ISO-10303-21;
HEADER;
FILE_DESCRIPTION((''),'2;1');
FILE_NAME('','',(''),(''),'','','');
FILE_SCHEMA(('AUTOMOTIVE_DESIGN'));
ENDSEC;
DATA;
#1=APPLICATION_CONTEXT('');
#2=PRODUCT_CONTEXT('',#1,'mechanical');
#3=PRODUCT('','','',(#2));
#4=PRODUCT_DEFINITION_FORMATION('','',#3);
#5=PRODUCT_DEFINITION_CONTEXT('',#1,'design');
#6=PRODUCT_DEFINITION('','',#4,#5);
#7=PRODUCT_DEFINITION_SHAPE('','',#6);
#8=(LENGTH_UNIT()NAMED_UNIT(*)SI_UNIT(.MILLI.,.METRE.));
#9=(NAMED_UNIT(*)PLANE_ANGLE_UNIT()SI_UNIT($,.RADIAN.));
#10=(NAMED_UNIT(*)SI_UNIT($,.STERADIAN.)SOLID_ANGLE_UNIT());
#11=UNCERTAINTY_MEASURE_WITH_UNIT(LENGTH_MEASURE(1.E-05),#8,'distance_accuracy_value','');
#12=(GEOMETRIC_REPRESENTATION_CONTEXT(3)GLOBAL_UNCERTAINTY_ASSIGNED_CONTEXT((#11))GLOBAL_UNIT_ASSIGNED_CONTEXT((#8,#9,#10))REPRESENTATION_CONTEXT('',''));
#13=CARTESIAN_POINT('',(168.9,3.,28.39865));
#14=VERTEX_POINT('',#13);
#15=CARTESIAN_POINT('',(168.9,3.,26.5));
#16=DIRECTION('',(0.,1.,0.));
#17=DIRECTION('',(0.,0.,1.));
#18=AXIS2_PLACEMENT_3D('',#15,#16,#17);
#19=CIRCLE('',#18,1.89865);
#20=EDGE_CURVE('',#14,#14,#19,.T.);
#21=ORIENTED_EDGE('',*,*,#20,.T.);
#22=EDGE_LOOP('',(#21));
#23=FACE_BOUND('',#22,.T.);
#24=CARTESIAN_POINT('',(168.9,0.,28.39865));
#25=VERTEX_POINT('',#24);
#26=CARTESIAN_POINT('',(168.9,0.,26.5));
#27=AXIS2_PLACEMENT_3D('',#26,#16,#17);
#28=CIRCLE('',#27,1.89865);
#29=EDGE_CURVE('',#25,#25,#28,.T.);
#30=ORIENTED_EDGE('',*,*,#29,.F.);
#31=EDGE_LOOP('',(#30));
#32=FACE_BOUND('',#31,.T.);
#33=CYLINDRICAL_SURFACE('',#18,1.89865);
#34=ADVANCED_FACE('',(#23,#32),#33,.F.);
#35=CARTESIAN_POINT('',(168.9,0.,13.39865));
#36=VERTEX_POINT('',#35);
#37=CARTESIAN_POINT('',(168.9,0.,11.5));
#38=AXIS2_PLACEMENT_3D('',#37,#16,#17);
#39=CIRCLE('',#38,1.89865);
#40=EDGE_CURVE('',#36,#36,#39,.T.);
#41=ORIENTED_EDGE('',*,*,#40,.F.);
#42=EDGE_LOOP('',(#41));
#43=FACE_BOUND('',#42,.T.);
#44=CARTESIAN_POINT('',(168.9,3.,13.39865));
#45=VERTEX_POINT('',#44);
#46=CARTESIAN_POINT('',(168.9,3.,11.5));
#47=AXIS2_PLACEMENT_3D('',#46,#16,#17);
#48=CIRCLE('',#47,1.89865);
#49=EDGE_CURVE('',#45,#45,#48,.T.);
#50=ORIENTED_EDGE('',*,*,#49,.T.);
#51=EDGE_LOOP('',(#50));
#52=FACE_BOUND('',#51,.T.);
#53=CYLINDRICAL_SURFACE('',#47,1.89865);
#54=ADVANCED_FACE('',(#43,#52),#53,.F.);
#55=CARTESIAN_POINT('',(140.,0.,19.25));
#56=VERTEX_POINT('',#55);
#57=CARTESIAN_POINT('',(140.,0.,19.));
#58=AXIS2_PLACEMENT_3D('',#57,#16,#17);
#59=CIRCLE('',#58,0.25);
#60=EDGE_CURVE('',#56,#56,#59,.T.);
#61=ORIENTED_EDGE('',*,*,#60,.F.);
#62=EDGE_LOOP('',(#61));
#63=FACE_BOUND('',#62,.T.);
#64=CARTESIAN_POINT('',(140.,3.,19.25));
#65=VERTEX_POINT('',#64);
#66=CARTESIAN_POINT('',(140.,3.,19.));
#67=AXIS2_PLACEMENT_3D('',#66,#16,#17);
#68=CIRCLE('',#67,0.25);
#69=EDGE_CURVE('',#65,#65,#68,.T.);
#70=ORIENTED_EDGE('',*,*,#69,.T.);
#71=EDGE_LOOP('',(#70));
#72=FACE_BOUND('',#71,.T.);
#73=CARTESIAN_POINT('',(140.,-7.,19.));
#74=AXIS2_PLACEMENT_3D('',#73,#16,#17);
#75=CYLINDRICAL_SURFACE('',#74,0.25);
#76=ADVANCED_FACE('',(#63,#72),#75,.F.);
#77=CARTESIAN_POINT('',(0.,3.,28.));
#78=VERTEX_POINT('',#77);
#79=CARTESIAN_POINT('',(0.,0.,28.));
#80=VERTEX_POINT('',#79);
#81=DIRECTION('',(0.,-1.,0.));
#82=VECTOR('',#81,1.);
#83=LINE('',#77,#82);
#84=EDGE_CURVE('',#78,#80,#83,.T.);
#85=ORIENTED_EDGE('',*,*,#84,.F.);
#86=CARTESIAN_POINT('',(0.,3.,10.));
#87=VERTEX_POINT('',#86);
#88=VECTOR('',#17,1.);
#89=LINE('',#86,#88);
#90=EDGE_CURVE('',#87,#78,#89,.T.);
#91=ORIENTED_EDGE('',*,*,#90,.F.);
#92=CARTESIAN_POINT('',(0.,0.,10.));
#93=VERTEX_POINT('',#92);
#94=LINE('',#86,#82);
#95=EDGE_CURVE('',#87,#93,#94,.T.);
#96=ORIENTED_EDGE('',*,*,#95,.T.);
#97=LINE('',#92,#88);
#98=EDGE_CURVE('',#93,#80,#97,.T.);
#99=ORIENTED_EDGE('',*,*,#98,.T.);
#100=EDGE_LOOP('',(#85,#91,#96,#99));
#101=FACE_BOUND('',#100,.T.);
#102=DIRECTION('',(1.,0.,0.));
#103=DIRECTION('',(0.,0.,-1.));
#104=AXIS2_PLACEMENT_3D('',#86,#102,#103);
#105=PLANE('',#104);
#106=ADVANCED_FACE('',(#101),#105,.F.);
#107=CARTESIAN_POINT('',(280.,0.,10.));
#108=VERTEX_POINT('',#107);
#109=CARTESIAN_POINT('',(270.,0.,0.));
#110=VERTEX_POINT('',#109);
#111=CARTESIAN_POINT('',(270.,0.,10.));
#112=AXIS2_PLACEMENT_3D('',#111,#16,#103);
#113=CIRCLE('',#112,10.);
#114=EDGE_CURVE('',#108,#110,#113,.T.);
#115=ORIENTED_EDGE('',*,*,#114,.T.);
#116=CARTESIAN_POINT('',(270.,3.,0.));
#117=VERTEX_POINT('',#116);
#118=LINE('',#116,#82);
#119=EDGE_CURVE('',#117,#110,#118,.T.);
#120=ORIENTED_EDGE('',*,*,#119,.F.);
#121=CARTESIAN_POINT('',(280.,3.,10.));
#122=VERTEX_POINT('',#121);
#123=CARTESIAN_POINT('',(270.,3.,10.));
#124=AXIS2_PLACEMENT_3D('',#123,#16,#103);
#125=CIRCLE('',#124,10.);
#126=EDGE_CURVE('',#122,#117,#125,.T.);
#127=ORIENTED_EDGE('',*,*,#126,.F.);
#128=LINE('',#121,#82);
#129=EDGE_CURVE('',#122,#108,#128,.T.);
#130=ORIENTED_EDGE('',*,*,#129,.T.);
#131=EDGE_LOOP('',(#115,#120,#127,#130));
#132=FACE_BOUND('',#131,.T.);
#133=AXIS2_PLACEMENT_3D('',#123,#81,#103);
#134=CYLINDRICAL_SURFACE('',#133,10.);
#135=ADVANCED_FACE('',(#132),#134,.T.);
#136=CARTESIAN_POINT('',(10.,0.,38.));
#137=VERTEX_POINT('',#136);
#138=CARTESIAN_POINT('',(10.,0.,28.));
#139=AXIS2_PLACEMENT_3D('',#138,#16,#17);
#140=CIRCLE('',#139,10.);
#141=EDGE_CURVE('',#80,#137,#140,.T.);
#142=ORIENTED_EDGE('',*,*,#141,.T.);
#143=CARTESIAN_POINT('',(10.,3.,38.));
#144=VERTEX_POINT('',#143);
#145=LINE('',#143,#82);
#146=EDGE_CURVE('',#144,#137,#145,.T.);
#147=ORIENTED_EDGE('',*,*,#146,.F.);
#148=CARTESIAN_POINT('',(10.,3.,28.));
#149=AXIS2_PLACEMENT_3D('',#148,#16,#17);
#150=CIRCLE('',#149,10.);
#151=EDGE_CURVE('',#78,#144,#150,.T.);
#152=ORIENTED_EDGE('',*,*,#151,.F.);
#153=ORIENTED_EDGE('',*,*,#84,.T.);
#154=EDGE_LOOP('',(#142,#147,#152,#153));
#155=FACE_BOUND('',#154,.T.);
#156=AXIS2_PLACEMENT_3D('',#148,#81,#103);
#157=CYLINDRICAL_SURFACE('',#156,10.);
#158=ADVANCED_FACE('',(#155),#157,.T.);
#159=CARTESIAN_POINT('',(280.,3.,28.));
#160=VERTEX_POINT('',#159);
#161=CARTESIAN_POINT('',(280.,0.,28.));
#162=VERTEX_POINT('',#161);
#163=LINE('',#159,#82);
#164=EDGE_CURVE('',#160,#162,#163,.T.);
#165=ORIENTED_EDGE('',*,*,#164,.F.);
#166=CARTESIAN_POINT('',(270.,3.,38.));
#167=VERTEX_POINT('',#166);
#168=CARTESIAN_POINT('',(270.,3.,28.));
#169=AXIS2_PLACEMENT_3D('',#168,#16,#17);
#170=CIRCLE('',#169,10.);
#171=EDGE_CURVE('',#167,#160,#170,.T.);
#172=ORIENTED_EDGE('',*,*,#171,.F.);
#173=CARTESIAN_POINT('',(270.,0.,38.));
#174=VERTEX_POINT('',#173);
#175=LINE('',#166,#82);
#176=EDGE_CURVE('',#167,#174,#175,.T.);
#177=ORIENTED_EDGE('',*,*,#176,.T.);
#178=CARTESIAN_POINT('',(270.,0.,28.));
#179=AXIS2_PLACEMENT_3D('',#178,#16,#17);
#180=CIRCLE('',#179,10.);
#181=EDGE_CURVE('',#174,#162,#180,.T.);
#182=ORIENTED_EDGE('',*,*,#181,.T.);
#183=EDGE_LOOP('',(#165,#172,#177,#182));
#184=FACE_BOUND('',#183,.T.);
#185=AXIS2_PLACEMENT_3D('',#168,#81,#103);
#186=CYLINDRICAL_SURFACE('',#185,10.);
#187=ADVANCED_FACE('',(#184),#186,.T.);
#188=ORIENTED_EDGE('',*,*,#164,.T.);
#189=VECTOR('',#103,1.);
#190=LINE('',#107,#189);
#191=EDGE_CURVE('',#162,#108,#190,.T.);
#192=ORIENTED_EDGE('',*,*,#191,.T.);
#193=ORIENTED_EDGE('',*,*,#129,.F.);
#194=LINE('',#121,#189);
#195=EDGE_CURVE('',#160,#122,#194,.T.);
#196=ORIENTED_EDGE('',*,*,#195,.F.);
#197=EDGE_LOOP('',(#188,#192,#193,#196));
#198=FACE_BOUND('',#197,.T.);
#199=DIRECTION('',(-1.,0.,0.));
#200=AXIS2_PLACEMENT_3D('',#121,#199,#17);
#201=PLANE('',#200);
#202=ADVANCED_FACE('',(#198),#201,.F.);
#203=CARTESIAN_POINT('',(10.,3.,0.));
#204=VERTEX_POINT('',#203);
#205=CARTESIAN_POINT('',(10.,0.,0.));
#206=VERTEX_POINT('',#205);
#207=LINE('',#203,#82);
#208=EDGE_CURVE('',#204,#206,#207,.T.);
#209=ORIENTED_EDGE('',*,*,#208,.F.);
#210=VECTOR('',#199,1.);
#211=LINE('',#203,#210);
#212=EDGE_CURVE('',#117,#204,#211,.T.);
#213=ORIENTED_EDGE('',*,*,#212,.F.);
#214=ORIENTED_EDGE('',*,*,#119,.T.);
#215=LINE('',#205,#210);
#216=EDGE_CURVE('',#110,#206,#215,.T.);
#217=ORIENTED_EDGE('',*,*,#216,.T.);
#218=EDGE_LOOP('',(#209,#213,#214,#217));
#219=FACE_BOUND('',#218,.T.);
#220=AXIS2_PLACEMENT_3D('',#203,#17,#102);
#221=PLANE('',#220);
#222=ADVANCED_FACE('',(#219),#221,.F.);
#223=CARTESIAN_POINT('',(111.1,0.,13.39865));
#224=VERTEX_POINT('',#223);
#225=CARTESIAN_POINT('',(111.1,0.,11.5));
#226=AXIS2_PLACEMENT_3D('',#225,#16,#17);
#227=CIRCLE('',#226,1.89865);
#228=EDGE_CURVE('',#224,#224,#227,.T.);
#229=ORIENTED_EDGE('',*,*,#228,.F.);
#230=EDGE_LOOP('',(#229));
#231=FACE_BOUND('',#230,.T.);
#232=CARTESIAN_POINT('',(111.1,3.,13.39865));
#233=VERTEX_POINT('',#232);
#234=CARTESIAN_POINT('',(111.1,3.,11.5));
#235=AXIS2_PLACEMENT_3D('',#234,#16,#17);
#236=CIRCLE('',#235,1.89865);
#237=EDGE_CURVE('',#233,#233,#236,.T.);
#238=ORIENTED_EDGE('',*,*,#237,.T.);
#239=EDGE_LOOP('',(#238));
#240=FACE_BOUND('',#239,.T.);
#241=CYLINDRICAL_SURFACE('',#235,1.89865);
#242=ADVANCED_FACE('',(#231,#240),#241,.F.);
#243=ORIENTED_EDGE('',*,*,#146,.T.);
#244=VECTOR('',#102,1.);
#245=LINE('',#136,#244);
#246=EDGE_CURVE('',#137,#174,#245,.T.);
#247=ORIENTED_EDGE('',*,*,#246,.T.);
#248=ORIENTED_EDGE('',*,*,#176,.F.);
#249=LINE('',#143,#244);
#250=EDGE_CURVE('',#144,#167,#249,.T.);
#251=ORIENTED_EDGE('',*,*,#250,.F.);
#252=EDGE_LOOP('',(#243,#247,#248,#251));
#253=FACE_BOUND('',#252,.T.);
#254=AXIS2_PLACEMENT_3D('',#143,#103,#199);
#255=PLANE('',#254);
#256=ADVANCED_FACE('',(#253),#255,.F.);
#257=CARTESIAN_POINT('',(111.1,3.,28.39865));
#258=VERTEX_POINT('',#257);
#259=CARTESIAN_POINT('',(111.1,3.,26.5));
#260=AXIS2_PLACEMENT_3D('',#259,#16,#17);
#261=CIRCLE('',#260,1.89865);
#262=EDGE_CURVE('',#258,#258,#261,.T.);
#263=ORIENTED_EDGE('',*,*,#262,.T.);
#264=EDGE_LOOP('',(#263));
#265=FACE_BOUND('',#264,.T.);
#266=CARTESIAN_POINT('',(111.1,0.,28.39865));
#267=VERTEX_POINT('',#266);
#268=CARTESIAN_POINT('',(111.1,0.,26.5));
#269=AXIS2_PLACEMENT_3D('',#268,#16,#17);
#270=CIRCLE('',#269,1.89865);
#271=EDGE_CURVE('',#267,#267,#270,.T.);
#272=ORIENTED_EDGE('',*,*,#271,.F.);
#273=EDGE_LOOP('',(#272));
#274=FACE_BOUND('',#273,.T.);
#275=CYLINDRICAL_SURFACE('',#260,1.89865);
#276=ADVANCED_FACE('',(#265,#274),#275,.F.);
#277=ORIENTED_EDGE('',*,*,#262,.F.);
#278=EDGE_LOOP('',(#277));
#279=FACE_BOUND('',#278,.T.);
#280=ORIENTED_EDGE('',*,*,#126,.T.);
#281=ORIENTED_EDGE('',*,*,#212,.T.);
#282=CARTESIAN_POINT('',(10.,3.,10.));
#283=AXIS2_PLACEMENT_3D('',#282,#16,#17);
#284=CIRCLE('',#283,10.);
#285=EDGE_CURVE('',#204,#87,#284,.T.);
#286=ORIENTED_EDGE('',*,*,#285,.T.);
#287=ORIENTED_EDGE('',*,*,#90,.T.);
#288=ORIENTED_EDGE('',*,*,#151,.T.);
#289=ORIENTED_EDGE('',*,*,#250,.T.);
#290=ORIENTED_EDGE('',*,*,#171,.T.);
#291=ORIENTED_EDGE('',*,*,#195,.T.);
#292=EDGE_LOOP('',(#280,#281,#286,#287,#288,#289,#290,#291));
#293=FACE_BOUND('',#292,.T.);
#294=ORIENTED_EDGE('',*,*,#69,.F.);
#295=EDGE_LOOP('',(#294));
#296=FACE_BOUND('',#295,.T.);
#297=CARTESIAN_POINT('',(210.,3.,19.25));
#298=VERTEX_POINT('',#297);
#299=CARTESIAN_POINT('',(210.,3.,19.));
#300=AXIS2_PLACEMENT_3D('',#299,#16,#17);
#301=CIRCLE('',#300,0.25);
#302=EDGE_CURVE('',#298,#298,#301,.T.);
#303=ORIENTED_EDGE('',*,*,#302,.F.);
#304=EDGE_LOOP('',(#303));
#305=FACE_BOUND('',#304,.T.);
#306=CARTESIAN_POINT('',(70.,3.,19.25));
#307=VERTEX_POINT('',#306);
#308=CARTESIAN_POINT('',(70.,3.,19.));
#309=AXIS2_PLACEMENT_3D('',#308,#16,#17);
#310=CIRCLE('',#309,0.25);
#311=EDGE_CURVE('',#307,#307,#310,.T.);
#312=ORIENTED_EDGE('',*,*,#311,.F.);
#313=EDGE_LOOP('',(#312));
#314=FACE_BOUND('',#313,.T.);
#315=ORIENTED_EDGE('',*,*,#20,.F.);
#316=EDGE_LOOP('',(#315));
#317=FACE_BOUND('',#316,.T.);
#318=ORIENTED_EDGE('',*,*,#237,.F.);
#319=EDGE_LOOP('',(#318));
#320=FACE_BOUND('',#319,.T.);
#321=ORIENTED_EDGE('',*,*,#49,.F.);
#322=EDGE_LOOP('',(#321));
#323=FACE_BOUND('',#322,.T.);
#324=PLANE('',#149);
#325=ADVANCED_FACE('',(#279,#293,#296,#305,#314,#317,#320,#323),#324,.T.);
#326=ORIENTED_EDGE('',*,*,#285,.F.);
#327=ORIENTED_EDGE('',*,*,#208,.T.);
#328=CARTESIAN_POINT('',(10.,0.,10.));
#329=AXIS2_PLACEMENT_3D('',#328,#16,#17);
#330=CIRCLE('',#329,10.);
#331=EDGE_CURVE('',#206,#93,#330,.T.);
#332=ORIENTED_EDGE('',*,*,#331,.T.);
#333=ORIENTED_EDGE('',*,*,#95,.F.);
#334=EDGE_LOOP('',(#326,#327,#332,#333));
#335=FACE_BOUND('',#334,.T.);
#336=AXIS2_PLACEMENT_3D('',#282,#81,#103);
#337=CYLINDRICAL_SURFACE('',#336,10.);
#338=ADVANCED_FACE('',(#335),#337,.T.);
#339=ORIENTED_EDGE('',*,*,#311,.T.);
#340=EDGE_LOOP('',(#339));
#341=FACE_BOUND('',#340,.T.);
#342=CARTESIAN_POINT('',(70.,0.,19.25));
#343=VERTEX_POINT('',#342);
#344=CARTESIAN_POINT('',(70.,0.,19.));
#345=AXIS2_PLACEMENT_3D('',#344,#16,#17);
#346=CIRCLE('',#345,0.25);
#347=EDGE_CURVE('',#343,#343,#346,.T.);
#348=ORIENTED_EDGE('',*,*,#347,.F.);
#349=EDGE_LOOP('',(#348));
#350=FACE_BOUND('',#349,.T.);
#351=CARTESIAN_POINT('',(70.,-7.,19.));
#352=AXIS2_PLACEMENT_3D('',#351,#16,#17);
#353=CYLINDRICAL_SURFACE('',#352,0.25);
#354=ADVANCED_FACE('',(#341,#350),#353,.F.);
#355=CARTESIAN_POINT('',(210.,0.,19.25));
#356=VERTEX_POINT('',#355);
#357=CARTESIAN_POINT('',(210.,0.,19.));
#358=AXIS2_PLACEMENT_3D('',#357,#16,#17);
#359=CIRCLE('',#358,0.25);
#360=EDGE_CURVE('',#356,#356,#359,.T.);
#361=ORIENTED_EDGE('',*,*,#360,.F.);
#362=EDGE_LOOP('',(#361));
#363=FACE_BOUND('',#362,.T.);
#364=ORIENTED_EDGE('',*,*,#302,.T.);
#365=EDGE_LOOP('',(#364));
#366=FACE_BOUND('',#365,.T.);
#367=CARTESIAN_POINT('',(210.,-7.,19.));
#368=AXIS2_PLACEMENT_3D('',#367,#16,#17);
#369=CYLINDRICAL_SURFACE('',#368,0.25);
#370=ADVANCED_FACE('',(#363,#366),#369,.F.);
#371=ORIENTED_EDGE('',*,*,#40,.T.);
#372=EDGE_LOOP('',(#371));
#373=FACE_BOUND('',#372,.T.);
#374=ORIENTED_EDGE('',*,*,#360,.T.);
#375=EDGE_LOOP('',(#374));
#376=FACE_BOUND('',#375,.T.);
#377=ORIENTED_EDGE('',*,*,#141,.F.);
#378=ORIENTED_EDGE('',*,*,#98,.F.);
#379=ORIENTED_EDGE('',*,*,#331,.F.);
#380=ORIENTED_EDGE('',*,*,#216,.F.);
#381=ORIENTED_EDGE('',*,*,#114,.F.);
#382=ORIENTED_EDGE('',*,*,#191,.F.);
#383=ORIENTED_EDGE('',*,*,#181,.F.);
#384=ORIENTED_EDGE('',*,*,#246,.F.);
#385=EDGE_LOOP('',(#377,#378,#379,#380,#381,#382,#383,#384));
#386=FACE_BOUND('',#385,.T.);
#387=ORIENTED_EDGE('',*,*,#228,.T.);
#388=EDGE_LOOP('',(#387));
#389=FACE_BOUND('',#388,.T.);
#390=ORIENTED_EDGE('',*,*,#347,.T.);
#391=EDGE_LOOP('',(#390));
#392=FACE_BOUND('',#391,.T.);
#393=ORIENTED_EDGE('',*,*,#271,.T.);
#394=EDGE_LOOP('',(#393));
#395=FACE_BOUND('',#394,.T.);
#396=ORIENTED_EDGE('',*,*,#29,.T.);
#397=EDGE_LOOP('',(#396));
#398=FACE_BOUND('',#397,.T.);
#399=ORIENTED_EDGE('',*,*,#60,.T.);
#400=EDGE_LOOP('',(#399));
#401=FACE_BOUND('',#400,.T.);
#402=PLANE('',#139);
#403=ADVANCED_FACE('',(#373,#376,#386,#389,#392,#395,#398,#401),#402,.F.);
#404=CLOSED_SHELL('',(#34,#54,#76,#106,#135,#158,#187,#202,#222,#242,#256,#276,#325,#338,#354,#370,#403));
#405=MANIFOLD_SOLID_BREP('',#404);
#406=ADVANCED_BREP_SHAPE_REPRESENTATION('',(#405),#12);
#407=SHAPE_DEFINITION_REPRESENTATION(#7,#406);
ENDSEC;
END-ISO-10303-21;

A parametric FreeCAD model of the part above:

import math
import FreeCAD as App
import Part
import Sketcher
Q = App.Units.Quantity

doc = App.newDocument("Part")
params = doc.addObject("Spreadsheet::Sheet", "Params")
for row, (alias, value) in enumerate([
    ("sketch1_radius", "10 mm"),
    ("sketch1_width", "260 mm"),
    ("sketch1_height", "18 mm"),
    ("pad1_length", "3 mm"),
    ("hole_diameter", "3.7973 mm"),
    ("sketch3_diameter", "0.5 mm"),
    ("pocket1_length", "10 mm"),
], start=1):
    params.set(f"A{row}", alias)
    params.set(f"B{row}", "=" + value)
    params.setAlias(f"B{row}", alias)

body = doc.addObject("PartDesign::Body", "Body")

sketch1 = doc.addObject("Sketcher::SketchObject", "Sketch")
body.addObject(sketch1)
sketch1.AttachmentSupport = (doc.XZ_Plane, [""])
sketch1.MapMode = "FlatFace"
sketch1.addGeometry(Part.LineSegment(App.Vector(270, 0, 0), App.Vector(10, 0, 0)), False)
sketch1.addGeometry(Part.ArcOfCircle(Part.Circle(App.Vector(10, 10, 0), App.Vector(0, 0, 1), 10), math.radians(180), math.radians(270)), False)
sketch1.addGeometry(Part.LineSegment(App.Vector(0, 10, 0), App.Vector(0, 28, 0)), False)
sketch1.addGeometry(Part.ArcOfCircle(Part.Circle(App.Vector(10, 28, 0), App.Vector(0, 0, 1), 10), math.radians(90), math.radians(180)), False)
sketch1.addGeometry(Part.LineSegment(App.Vector(10, 38, 0), App.Vector(270, 38, 0)), False)
sketch1.addGeometry(Part.ArcOfCircle(Part.Circle(App.Vector(270, 28, 0), App.Vector(0, 0, 1), 10), math.radians(0), math.radians(90)), False)
sketch1.addGeometry(Part.LineSegment(App.Vector(280, 28, 0), App.Vector(280, 10, 0)), False)
sketch1.addGeometry(Part.ArcOfCircle(Part.Circle(App.Vector(270, 10, 0), App.Vector(0, 0, 1), 10), math.radians(-90), math.radians(0)), False)
sketch1.addConstraint(Sketcher.Constraint("Tangent", 0, 2, 1, 2))
sketch1.addConstraint(Sketcher.Constraint("Tangent", 1, 1, 2, 1))
sketch1.addConstraint(Sketcher.Constraint("Tangent", 2, 2, 3, 2))
sketch1.addConstraint(Sketcher.Constraint("Tangent", 3, 1, 4, 1))
sketch1.addConstraint(Sketcher.Constraint("Tangent", 4, 2, 5, 2))
sketch1.addConstraint(Sketcher.Constraint("Tangent", 5, 1, 6, 1))
sketch1.addConstraint(Sketcher.Constraint("Tangent", 6, 2, 7, 2))
sketch1.addConstraint(Sketcher.Constraint("Tangent", 7, 1, 0, 1))
sketch1.addConstraint(Sketcher.Constraint("Horizontal", 0))
sketch1.addConstraint(Sketcher.Constraint("Vertical", 2))
sketch1.addConstraint(Sketcher.Constraint("Horizontal", 4))
sketch1.addConstraint(Sketcher.Constraint("Vertical", 6))
sketch1.addConstraint(Sketcher.Constraint("Equal", 1, 3))
sketch1.addConstraint(Sketcher.Constraint("Equal", 3, 5))
sketch1.addConstraint(Sketcher.Constraint("Equal", 5, 7))
sketch1.addConstraint(Sketcher.Constraint("PointOnObject", 0, 2, -1))
sketch1.addConstraint(Sketcher.Constraint("PointOnObject", 1, 1, -2))
sketch1.addConstraint(Sketcher.Constraint("Radius", 1, Q("10 mm")))
sketch1.addConstraint(Sketcher.Constraint("DistanceX", 0, 2, 0, 1, Q("260 mm")))
sketch1.addConstraint(Sketcher.Constraint("DistanceY", 2, 1, 2, 2, Q("18 mm")))
sketch1.setExpression("Constraints[17]", "Params.sketch1_radius")
sketch1.setExpression("Constraints[18]", "Params.sketch1_width")
sketch1.setExpression("Constraints[19]", "Params.sketch1_height")
pad1 = doc.addObject("PartDesign::Pad", "Pad")
body.addObject(pad1)
pad1.Profile = sketch1
pad1.setExpression("Length", "Params.pad1_length")
pad1.Reversed = True

sketch2 = doc.addObject("Sketcher::SketchObject", "Sketch001")
body.addObject(sketch2)
sketch2.AttachmentSupport = (doc.XZ_Plane, [""])
sketch2.MapMode = "FlatFace"
sketch2.AttachmentOffset = App.Placement(App.Vector(0, 0, -3), App.Rotation())
sketch2.addGeometry(Part.Circle(App.Vector(111.1, 11.5, 0), App.Vector(0, 0, 1), 1.9), False)
sketch2.addGeometry(Part.Circle(App.Vector(111.1, 26.5, 0), App.Vector(0, 0, 1), 1.9), False)
sketch2.addGeometry(Part.Circle(App.Vector(168.9, 26.5, 0), App.Vector(0, 0, 1), 1.9), False)
sketch2.addGeometry(Part.Circle(App.Vector(168.9, 11.5, 0), App.Vector(0, 0, 1), 1.9), False)
sketch2.addConstraint(Sketcher.Constraint("Equal", 0, 1))
sketch2.addConstraint(Sketcher.Constraint("Equal", 1, 2))
sketch2.addConstraint(Sketcher.Constraint("Equal", 2, 3))
sketch2.addConstraint(Sketcher.Constraint("Horizontal", 1, 3, 2, 3))
sketch2.addConstraint(Sketcher.Constraint("Horizontal", 0, 3, 3, 3))
sketch2.addConstraint(Sketcher.Constraint("Vertical", 0, 3, 1, 3))
sketch2.addConstraint(Sketcher.Constraint("Vertical", 2, 3, 3, 3))
sketch2.addConstraint(Sketcher.Constraint("DistanceY", 0, 3, 1, 3, Q("15 mm")))
sketch2.addConstraint(Sketcher.Constraint("Diameter", 0, Q("3.7973 mm")))
sketch2.addConstraint(Sketcher.Constraint("DistanceX", -1, 1, 0, 3, Q("111.1 mm")))
sketch2.addConstraint(Sketcher.Constraint("DistanceY", -1, 1, 0, 3, Q("11.5 mm")))
sketch2.addConstraint(Sketcher.Constraint("DistanceX", -1, 1, 2, 3, Q("168.9 mm")))
doc.recompute()
hole = doc.addObject("PartDesign::Hole", "Hole")
body.addObject(hole)
hole.Profile = sketch2
hole.ThreadType = "None"
hole.setExpression("Diameter", "Params.hole_diameter")
hole.DepthType = "ThroughAll"
hole.Reversed = True

sketch3 = doc.addObject("Sketcher::SketchObject", "Sketch002")
body.addObject(sketch3)
sketch3.AttachmentSupport = (doc.XZ_Plane, [""])
sketch3.MapMode = "FlatFace"
sketch3.AttachmentOffset = App.Placement(App.Vector(0, 0, -3), App.Rotation())
sketch3.addGeometry(Part.Circle(App.Vector(70, 19, 0), App.Vector(0, 0, 1), 0.25), False)
sketch3.addGeometry(Part.Circle(App.Vector(140, 19, 0), App.Vector(0, 0, 1), 0.25), False)
sketch3.addGeometry(Part.Circle(App.Vector(210, 19, 0), App.Vector(0, 0, 1), 0.25), False)
sketch3.addConstraint(Sketcher.Constraint("Equal", 0, 1))
sketch3.addConstraint(Sketcher.Constraint("Equal", 1, 2))
sketch3.addConstraint(Sketcher.Constraint("Horizontal", 0, 3, 1, 3))
sketch3.addConstraint(Sketcher.Constraint("Horizontal", 1, 3, 2, 3))
sketch3.addConstraint(Sketcher.Constraint("Diameter", 0, Q("0.5 mm")))
sketch3.addConstraint(Sketcher.Constraint("DistanceX", -1, 1, 0, 3, Q("70 mm")))
sketch3.addConstraint(Sketcher.Constraint("DistanceY", -1, 1, 0, 3, Q("19 mm")))
sketch3.addConstraint(Sketcher.Constraint("DistanceX", -1, 1, 1, 3, Q("140 mm")))
sketch3.addConstraint(Sketcher.Constraint("DistanceX", -1, 1, 2, 3, Q("210 mm")))
sketch3.setExpression("Constraints[4]", "Params.sketch3_diameter")
pocket1 = doc.addObject("PartDesign::Pocket", "Pocket")
body.addObject(pocket1)
pocket1.Profile = sketch3
pocket1.setExpression("Length", "Params.pocket1_length")
pocket1.Reversed = True

doc.recompute()
